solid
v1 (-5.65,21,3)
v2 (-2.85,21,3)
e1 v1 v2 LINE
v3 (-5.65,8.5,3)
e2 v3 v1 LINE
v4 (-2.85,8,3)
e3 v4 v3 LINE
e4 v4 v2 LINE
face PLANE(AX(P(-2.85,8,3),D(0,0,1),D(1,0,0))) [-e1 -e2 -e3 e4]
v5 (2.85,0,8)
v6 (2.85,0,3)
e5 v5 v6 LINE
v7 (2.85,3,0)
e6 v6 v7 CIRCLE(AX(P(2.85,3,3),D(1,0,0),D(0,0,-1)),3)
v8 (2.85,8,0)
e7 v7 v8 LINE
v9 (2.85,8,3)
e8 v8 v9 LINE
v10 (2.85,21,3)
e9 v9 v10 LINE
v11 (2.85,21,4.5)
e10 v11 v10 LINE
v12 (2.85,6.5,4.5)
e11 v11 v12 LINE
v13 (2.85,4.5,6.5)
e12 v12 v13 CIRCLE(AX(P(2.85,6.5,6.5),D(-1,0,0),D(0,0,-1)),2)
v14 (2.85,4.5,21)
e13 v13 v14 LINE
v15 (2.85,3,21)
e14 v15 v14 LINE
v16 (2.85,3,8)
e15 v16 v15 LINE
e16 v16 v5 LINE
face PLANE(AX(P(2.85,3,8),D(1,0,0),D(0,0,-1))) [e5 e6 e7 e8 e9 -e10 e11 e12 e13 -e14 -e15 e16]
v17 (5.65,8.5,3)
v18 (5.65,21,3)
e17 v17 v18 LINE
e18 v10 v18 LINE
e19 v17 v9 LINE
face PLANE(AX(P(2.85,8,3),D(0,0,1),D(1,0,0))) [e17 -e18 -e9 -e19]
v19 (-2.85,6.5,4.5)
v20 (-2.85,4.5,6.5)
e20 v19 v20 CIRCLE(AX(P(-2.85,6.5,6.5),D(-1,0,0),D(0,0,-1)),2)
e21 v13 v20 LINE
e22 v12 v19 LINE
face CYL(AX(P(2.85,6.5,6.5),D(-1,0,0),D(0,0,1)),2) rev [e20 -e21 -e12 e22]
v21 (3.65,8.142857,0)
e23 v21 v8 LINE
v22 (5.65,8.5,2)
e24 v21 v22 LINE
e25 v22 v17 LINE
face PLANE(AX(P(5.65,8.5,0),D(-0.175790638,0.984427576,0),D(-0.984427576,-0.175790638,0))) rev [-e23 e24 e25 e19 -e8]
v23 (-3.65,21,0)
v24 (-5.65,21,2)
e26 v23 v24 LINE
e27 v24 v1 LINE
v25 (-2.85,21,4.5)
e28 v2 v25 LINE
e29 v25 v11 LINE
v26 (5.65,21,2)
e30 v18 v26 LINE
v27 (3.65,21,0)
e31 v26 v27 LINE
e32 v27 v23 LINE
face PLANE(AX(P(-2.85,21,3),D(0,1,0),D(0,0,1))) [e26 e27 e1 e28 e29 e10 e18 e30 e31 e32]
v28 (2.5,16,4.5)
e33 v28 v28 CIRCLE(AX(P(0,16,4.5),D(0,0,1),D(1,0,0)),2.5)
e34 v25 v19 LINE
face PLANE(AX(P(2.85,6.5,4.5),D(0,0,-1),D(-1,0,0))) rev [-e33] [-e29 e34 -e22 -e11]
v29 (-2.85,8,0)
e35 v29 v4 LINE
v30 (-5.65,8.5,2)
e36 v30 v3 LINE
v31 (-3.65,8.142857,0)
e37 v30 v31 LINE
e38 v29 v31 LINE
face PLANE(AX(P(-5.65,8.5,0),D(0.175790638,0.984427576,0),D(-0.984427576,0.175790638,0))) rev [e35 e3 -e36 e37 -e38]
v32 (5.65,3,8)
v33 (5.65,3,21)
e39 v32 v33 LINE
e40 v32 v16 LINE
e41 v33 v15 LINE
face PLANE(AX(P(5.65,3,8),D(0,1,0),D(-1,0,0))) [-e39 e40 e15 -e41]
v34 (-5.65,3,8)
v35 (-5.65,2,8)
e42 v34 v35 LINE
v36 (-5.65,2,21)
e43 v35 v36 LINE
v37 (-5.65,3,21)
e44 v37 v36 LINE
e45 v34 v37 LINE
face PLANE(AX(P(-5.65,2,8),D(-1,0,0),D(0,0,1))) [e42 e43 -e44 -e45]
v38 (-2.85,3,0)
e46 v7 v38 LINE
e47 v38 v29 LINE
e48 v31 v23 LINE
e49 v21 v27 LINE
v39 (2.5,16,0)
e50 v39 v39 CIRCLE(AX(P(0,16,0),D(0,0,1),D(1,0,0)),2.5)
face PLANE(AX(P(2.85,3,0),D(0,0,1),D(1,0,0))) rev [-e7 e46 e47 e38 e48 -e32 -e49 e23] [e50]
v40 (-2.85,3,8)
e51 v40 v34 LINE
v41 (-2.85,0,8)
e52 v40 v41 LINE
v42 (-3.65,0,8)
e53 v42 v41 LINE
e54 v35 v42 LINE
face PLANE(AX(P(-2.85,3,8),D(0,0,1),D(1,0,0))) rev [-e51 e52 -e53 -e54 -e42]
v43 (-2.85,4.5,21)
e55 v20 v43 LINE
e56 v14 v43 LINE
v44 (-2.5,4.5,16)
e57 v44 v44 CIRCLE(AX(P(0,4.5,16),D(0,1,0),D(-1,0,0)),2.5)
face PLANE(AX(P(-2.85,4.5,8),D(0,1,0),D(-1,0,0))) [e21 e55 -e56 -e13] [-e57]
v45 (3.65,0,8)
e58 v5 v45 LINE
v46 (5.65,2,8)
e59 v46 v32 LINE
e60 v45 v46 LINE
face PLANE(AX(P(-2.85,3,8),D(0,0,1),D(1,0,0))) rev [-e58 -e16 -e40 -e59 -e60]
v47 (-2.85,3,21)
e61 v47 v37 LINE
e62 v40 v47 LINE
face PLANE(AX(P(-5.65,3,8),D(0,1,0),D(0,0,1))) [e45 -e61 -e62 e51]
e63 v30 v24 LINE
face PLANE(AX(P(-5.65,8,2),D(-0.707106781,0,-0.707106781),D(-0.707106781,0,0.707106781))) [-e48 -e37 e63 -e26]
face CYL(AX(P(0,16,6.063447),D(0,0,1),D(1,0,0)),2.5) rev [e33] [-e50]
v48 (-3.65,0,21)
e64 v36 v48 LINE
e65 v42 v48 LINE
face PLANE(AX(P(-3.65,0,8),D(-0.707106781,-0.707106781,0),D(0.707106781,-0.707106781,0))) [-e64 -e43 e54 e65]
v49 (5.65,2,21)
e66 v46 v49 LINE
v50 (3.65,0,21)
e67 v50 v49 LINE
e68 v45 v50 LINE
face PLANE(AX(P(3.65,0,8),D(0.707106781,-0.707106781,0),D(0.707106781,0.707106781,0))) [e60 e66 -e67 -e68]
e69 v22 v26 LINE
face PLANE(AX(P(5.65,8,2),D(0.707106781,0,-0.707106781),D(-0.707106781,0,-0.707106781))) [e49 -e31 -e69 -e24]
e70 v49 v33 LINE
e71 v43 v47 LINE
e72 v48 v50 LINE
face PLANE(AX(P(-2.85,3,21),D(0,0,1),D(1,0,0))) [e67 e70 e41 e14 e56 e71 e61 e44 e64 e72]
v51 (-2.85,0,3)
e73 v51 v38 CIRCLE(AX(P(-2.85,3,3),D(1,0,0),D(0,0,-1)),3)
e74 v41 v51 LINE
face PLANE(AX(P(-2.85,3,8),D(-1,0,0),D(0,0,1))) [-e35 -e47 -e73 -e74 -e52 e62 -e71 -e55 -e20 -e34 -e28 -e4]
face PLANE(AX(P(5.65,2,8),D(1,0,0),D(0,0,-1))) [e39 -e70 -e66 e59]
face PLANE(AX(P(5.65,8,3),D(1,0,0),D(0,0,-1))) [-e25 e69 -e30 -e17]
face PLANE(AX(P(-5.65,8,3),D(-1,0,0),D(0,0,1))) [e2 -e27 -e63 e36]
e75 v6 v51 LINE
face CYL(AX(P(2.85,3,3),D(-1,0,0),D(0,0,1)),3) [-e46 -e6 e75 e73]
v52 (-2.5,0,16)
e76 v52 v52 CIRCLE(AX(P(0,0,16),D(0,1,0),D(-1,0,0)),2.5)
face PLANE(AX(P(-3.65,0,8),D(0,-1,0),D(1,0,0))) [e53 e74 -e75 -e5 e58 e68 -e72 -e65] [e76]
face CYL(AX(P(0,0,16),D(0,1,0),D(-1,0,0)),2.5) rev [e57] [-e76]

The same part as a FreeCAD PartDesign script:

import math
import FreeCAD as App
import Part
import Sketcher
from FreeCAD import Vector


def add_polygon(sketch, points):
    """Adds a closed chain of lines whose ends are joined by coincident constraints."""
    first, n = sketch.GeometryCount, len(points)
    for a, b in zip(points, points[1:] + points[:1]):
        sketch.addGeometry(Part.LineSegment(App.Vector(*a, 0), App.Vector(*b, 0)), False)
    for i in range(n):
        sketch.addConstraint(Sketcher.Constraint("Coincident", first + i, 2, first + (i + 1) % n, 1))

doc = App.newDocument("Part")
body = doc.addObject("PartDesign::Body", "Body")

sketch1 = body.newObject("Sketcher::SketchObject", "Sketch")
sketch1.AttachmentSupport = (doc.getObject("XY_Plane"), [""])
sketch1.MapMode = "FlatFace"
sketch1.AttachmentOffset = App.Placement(Vector(0, 0, 21), App.Rotation())
add_polygon(sketch1, [(2.9, 4.5), (-2.9, 4.5), (-2.9, 3), (-5.7, 3), (-5.7, 2), (-3.6, 0), (3.6, 0), (5.7, 2), (5.7, 3), (2.9, 3)])
sketch1.addConstraint(Sketcher.Constraint("Horizontal", 0))
sketch1.addConstraint(Sketcher.Constraint("Vertical", 1))
sketch1.addConstraint(Sketcher.Constraint("Horizontal", 2))
sketch1.addConstraint(Sketcher.Constraint("Vertical", 3))
sketch1.addConstraint(Sketcher.Constraint("Horizontal", 5))
sketch1.addConstraint(Sketcher.Constraint("Vertical", 7))
sketch1.addConstraint(Sketcher.Constraint("Horizontal", 8))
sketch1.addConstraint(Sketcher.Constraint("Vertical", 9))
sketch1.addConstraint(Sketcher.Constraint("Symmetric", 4, 2, 5, 2, -1, 1))
sketch1.addConstraint(Sketcher.Constraint("Symmetric", 3, 2, 6, 2, -2))
sketch1.addConstraint(Sketcher.Constraint("Symmetric", 1, 2, 8, 2, -2))
sketch1.addConstraint(Sketcher.Constraint("Perpendicular", 4, 6))
sketch1.addConstraint(Sketcher.Constraint("DistanceY", 3, 2, 3, 1, 1.0))
sketch1.addConstraint(Sketcher.Constraint("DistanceX", 0, 2, 0, 1, 5.7))
sketch1.addConstraint(Sketcher.Constraint("DistanceX", 2, 2, 2, 1, 2.8))
sketch1.addConstraint(Sketcher.Constraint("DistanceX", 5, 1, 5, 2, 7.3))
sketch1.addConstraint(Sketcher.Constraint("DistanceY", 1, 2, 1, 1, 1.5))
pad1 = body.newObject("PartDesign::Pad", "Pad")
pad1.Profile = sketch1
pad1.Length = 13
pad1.Reversed = True

sketch2 = body.newObject("Sketcher::SketchObject", "Sketch001")
sketch2.AttachmentSupport = (doc.getObject("XZ_Plane"), [""])
sketch2.MapMode = "FlatFace"
sketch2.AttachmentOffset = App.Placement(Vector(0, 0, -4.5), App.Rotation())
sketch2.addGeometry(Part.Circle(Vector(0, 16, 0), Vector(0, 0, 1), 2.5), False)
sketch2.addConstraint(Sketcher.Constraint("PointOnObject", 0, 3, -2))
sketch2.addConstraint(Sketcher.Constraint("Diameter", 0, 5.0))
sketch2.addConstraint(Sketcher.Constraint("DistanceY", -1, 1, 0, 3, 16.0))
pocket1 = body.newObject("PartDesign::Pocket", "Pocket")
pocket1.Profile = sketch2
pocket1.Type = "ThroughAll"
pocket1.Reversed = True
body2 = doc.addObject("PartDesign::Body", "Body001")

sketch3 = body2.newObject("Sketcher::SketchObject", "Sketch002")
sketch3.AttachmentSupport = (doc.getObject("XZ_Plane001"), [""])
sketch3.MapMode = "FlatFace"
sketch3.AttachmentOffset = App.Placement(Vector(0, 0, -21), App.Rotation())
add_polygon(sketch3, [(-2.9, 4.5), (2.9, 4.5), (2.9, 3), (5.7, 3), (5.7, 2), (3.6, 0), (-3.6, 0), (-5.7, 2), (-5.7, 3), (-2.9, 3)])
sketch3.addConstraint(Sketcher.Constraint("Horizontal", 0))
sketch3.addConstraint(Sketcher.Constraint("Vertical", 1))
sketch3.addConstraint(Sketcher.Constraint("Horizontal", 2))
sketch3.addConstraint(Sketcher.Constraint("Vertical", 3))
sketch3.addConstraint(Sketcher.Constraint("Horizontal", 5))
sketch3.addConstraint(Sketcher.Constraint("Vertical", 7))
sketch3.addConstraint(Sketcher.Constraint("Horizontal", 8))
sketch3.addConstraint(Sketcher.Constraint("Vertical", 9))
sketch3.addConstraint(Sketcher.Constraint("Symmetric", 4, 2, 5, 2, -1, 1))
sketch3.addConstraint(Sketcher.Constraint("Symmetric", 3, 2, 6, 2, -2))
sketch3.addConstraint(Sketcher.Constraint("Symmetric", 1, 2, 8, 2, -2))
sketch3.addConstraint(Sketcher.Constraint("Perpendicular", 4, 6))
sketch3.addConstraint(Sketcher.Constraint("DistanceY", 3, 2, 3, 1, 1.0))
sketch3.addConstraint(Sketcher.Constraint("DistanceX", 0, 1, 0, 2, 5.7))
sketch3.addConstraint(Sketcher.Constraint("DistanceX", 2, 1, 2, 2, 2.8))
sketch3.addConstraint(Sketcher.Constraint("DistanceX", 5, 2, 5, 1, 7.3))
sketch3.addConstraint(Sketcher.Constraint("DistanceY", 1, 2, 1, 1, 1.5))
pad2 = body2.newObject("PartDesign::Pad", "Pad001")
pad2.Profile = sketch3
pad2.Length = 13

sketch4 = body2.newObject("Sketcher::SketchObject", "Sketch003")
sketch4.AttachmentSupport = (doc.getObject("XY_Plane001"), [""])
sketch4.MapMode = "FlatFace"
sketch4.AttachmentOffset = App.Placement(Vector(0, 0, 4.5), App.Rotation())
add_polygon(sketch4, [(-5.7, 8.5), (-5.7, 8), (-2.9, 8)])
add_polygon(sketch4, [(2.9, 8), (5.7, 8), (5.7, 8.5)])
sketch4.addConstraint(Sketcher.Constraint("Vertical", 0))
sketch4.addConstraint(Sketcher.Constraint("Horizontal", 1))
sketch4.addConstraint(Sketcher.Constraint("Horizontal", 3))
sketch4.addConstraint(Sketcher.Constraint("Vertical", 4))
sketch4.addConstraint(Sketcher.Constraint("Symmetric", 0, 2, 3, 2, -2))
sketch4.addConstraint(Sketcher.Constraint("Horizontal", 2, 2, 4, 2))
sketch4.addConstraint(Sketcher.Constraint("Equal", 1, 3))
sketch4.addConstraint(Sketcher.Constraint("DistanceX", 1, 1, 1, 2, 2.8))
sketch4.addConstraint(Sketcher.Constraint("DistanceY", 0, 2, 0, 1, 0.5))
sketch4.addConstraint(Sketcher.Constraint("DistanceY", -1, 1, 0, 2, 8.0))
sketch4.addConstraint(Sketcher.Constraint("DistanceX", 1, 2, 3, 2, 8.5))
pocket2 = body2.newObject("PartDesign::Pocket", "Pocket001")
pocket2.Profile = sketch4
pocket2.Type = "ThroughAll"
body.AllowCompound = True
doc.recompute()

boolean = body.newObject("PartDesign::Boolean", "Boolean")
boolean.Type = "Fuse"
boolean.addObjects([body2])

sketch5 = body.newObject("Sketcher::SketchObject", "Sketch004")
sketch5.AttachmentSupport = (doc.getObject("YZ_Plane"), [""])
sketch5.MapMode = "FlatFace"
sketch5.addGeometry(Part.LineSegment(Vector(0, 8, 0), Vector(0, 3, 0)), False)
sketch5.addGeometry(Part.ArcOfCircle(Part.Circle(Vector(3, 3, 0), Vector(0, 0, 1), 3), math.radians(180), math.radians(270)), False)
sketch5.addGeometry(Part.LineSegment(Vector(3, 0, 0), Vector(8, 0, 0)), False)
sketch5.addGeometry(Part.LineSegment(Vector(8, 0, 0), Vector(8, 4.5, 0)), False)
sketch5.addGeometry(Part.LineSegment(Vector(8, 4.5, 0), Vector(6.5, 4.5, 0)), False)
sketch5.addGeometry(Part.ArcOfCircle(Part.Circle(Vector(6.5, 6.5, 0), Vector(0, 0, 1), 2), math.radians(-180), math.radians(-90)), False)
sketch5.addGeometry(Part.LineSegment(Vector(4.5, 6.5, 0), Vector(4.5, 8, 0)), False)
sketch5.addGeometry(Part.LineSegment(Vector(4.5, 8, 0), Vector(0, 8, 0)), False)
sketch5.addConstraint(Sketcher.Constraint("Tangent", 0, 2, 1, 1))
sketch5.addConstraint(Sketcher.Constraint("Tangent", 1, 2, 2, 1))
sketch5.addConstraint(Sketcher.Constraint("Coincident", 2, 2, 3, 1))
sketch5.addConstraint(Sketcher.Constraint("Coincident", 3, 2, 4, 1))
sketch5.addConstraint(Sketcher.Constraint("Tangent", 4, 2, 5, 2))
sketch5.addConstraint(Sketcher.Constraint("Tangent", 5, 1, 6, 1))
sketch5.addConstraint(Sketcher.Constraint("Coincident", 6, 2, 7, 1))
sketch5.addConstraint(Sketcher.Constraint("Coincident", 7, 2, 0, 1))
sketch5.addConstraint(Sketcher.Constraint("Vertical", 0))
sketch5.addConstraint(Sketcher.Constraint("Horizontal", 2))
sketch5.addConstraint(Sketcher.Constraint("Vertical", 3))
sketch5.addConstraint(Sketcher.Constraint("Horizontal", 4))
sketch5.addConstraint(Sketcher.Constraint("Vertical", 6))
sketch5.addConstraint(Sketcher.Constraint("Horizontal", 7))
sketch5.addConstraint(Sketcher.Constraint("PointOnObject", 0, 2, -2))
sketch5.addConstraint(Sketcher.Constraint("PointOnObject", 1, 2, -1))
sketch5.addConstraint(Sketcher.Constraint("Equal", 2, 0))
sketch5.addConstraint(Sketcher.Constraint("Equal", 7, 3))
sketch5.addConstraint(Sketcher.Constraint("Radius", 1, 3.0))
sketch5.addConstraint(Sketcher.Constraint("Radius", 5, 2.0))
sketch5.addConstraint(Sketcher.Constraint("DistanceX", 2, 1, 2, 2, 5.0))
sketch5.addConstraint(Sketcher.Constraint("DistanceX", 4, 2, 4, 1, 1.5))
pad3 = body.newObject("PartDesign::Pad", "Pad002")
pad3.Profile = sketch5
pad3.Type = "TwoLengths"
pad3.Length = 2.85
pad3.Length2 = 2.85

sketch6 = body.newObject("Sketcher::SketchObject", "Sketch005")
sketch6.AttachmentSupport = (doc.getObject("YZ_Plane"), [""])
sketch6.MapMode = "FlatFace"
add_polygon(sketch6, [(18.5, 4.5), (16, 4.5), (16, 0), (18.5, 0)])
sketch6.addGeometry(Part.LineSegment(Vector(16, 4.5, 0), Vector(16, 0, 0)), True)
sketch6.addConstraint(Sketcher.Constraint("Horizontal", 0))
sketch6.addConstraint(Sketcher.Constraint("Vertical", 1))
sketch6.addConstraint(Sketcher.Constraint("Horizontal", 2))
sketch6.addConstraint(Sketcher.Constraint("Vertical", 3))
sketch6.addConstraint(Sketcher.Constraint("Vertical", 4))
sketch6.addConstraint(Sketcher.Constraint("Coincident", 4, 1, 0, 2))
sketch6.addConstraint(Sketcher.Constraint("PointOnObject", 1, 2, -1))
sketch6.addConstraint(Sketcher.Constraint("PointOnObject", 4, 2, -1))
sketch6.addConstraint(Sketcher.Constraint("DistanceX", 0, 2, 0, 1, 2.5))
sketch6.addConstraint(Sketcher.Constraint("DistanceY", 1, 2, 1, 1, 4.5))
sketch6.addConstraint(Sketcher.Constraint("DistanceX", -1, 1, 0, 2, 16.0))
groove = body.newObject("PartDesign::Groove", "Groove")
groove.Profile = sketch6
groove.ReferenceAxis = (sketch6, ["Axis0"])
groove.Angle = 360

doc.recompute()
